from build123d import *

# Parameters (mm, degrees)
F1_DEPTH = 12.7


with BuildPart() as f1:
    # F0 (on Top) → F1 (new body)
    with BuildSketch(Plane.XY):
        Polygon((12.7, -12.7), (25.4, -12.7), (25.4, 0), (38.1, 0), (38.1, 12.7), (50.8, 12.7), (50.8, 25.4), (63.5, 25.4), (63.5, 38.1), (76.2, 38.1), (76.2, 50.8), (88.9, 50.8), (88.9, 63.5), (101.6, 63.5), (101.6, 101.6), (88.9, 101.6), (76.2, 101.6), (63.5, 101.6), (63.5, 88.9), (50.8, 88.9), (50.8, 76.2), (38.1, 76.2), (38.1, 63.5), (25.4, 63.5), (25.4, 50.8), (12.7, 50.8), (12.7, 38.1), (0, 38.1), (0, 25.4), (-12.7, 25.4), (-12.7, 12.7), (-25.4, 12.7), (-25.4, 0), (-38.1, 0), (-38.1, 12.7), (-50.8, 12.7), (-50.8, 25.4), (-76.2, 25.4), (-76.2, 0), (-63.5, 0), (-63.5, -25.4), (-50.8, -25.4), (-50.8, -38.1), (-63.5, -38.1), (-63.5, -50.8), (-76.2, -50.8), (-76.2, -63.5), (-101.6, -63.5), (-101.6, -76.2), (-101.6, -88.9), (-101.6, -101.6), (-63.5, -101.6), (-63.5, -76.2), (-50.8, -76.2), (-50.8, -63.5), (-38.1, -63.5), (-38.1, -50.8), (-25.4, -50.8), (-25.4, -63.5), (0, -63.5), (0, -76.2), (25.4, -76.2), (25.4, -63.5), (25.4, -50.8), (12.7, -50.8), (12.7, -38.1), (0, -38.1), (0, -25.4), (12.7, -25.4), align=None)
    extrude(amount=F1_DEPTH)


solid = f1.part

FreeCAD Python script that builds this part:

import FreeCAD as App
import Part
import Sketcher

V = App.Vector
Q = App.Units.Quantity

doc = App.newDocument("Part")
body = doc.addObject("PartDesign::Body", "Body")

sketch1 = doc.addObject("Sketcher::SketchObject", "Sketch")
body.addObject(sketch1)
sketch1.AttachmentSupport = (doc.XY_Plane, [""])
sketch1.MapMode = "FlatFace"
sketch1.addGeometry([
    Part.LineSegment(V(12.7, -12.7, 0), V(25.4, -12.7, 0)),
    Part.LineSegment(V(25.4, -12.7, 0), V(25.4, 0, 0)),
    Part.LineSegment(V(25.4, 0, 0), V(38.1, 0, 0)),
    Part.LineSegment(V(38.1, 0, 0), V(38.1, 12.7, 0)),
    Part.LineSegment(V(38.1, 12.7, 0), V(50.8, 12.7, 0)),
    Part.LineSegment(V(50.8, 12.7, 0), V(50.8, 25.4, 0)),
    Part.LineSegment(V(50.8, 25.4, 0), V(63.5, 25.4, 0)),
    Part.LineSegment(V(63.5, 25.4, 0), V(63.5, 38.1, 0)),
    Part.LineSegment(V(63.5, 38.1, 0), V(76.2, 38.1, 0)),
    Part.LineSegment(V(76.2, 38.1, 0), V(76.2, 50.8, 0)),
    Part.LineSegment(V(76.2, 50.8, 0), V(88.9, 50.8, 0)),
    Part.LineSegment(V(88.9, 50.8, 0), V(88.9, 63.5, 0)),
    Part.LineSegment(V(88.9, 63.5, 0), V(101.6, 63.5, 0)),
    Part.LineSegment(V(101.6, 63.5, 0), V(101.6, 101.6, 0)),
    Part.LineSegment(V(101.6, 101.6, 0), V(63.5, 101.6, 0)),
    Part.LineSegment(V(63.5, 101.6, 0), V(63.5, 88.9, 0)),
    Part.LineSegment(V(63.5, 88.9, 0), V(50.8, 88.9, 0)),
    Part.LineSegment(V(50.8, 88.9, 0), V(50.8, 76.2, 0)),
    Part.LineSegment(V(50.8, 76.2, 0), V(38.1, 76.2, 0)),
    Part.LineSegment(V(38.1, 76.2, 0), V(38.1, 63.5, 0)),
    Part.LineSegment(V(38.1, 63.5, 0), V(25.4, 63.5, 0)),
    Part.LineSegment(V(25.4, 63.5, 0), V(25.4, 50.8, 0)),
    Part.LineSegment(V(25.4, 50.8, 0), V(12.7, 50.8, 0)),
    Part.LineSegment(V(12.7, 50.8, 0), V(12.7, 38.1, 0)),
    Part.LineSegment(V(12.7, 38.1, 0), V(0, 38.1, 0)),
    Part.LineSegment(V(0, 38.1, 0), V(0, 25.4, 0)),
    Part.LineSegment(V(0, 25.4, 0), V(-12.7, 25.4, 0)),
    Part.LineSegment(V(-12.7, 25.4, 0), V(-12.7, 12.7, 0)),
    Part.LineSegment(V(-12.7, 12.7, 0), V(-25.4, 12.7, 0)),
    Part.LineSegment(V(-25.4, 12.7, 0), V(-25.4, 0, 0)),
    Part.LineSegment(V(-25.4, 0, 0), V(-38.1, 0, 0)),
    Part.LineSegment(V(-38.1, 0, 0), V(-38.1, 12.7, 0)),
    Part.LineSegment(V(-38.1, 12.7, 0), V(-50.8, 12.7, 0)),
    Part.LineSegment(V(-50.8, 12.7, 0), V(-50.8, 25.4, 0)),
    Part.LineSegment(V(-50.8, 25.4, 0), V(-76.2, 25.4, 0)),
    Part.LineSegment(V(-76.2, 25.4, 0), V(-76.2, 0, 0)),
    Part.LineSegment(V(-76.2, 0, 0), V(-63.5, 0, 0)),
    Part.LineSegment(V(-63.5, 0, 0), V(-63.5, -25.4, 0)),
    Part.LineSegment(V(-63.5, -25.4, 0), V(-50.8, -25.4, 0)),
    Part.LineSegment(V(-50.8, -25.4, 0), V(-50.8, -38.1, 0)),
    Part.LineSegment(V(-50.8, -38.1, 0), V(-63.5, -38.1, 0)),
    Part.LineSegment(V(-63.5, -38.1, 0), V(-63.5, -50.8, 0)),
    Part.LineSegment(V(-63.5, -50.8, 0), V(-76.2, -50.8, 0)),
    Part.LineSegment(V(-76.2, -50.8, 0), V(-76.2, -63.5, 0)),
    Part.LineSegment(V(-76.2, -63.5, 0), V(-101.6, -63.5, 0)),
    Part.LineSegment(V(-101.6, -63.5, 0), V(-101.6, -101.6, 0)),
    Part.LineSegment(V(-101.6, -101.6, 0), V(-63.5, -101.6, 0)),
    Part.LineSegment(V(-63.5, -101.6, 0), V(-63.5, -76.2, 0)),
    Part.LineSegment(V(-63.5, -76.2, 0), V(-50.8, -76.2, 0)),
    Part.LineSegment(V(-50.8, -76.2, 0), V(-50.8, -63.5, 0)),
    Part.LineSegment(V(-50.8, -63.5, 0), V(-38.1, -63.5, 0)),
    Part.LineSegment(V(-38.1, -63.5, 0), V(-38.1, -50.8, 0)),
    Part.LineSegment(V(-38.1, -50.8, 0), V(-25.4, -50.8, 0)),
    Part.LineSegment(V(-25.4, -50.8, 0), V(-25.4, -63.5, 0)),
    Part.LineSegment(V(-25.4, -63.5, 0), V(0, -63.5, 0)),
    Part.LineSegment(V(0, -63.5, 0), V(0, -76.2, 0)),
    Part.LineSegment(V(0, -76.2, 0), V(25.4, -76.2, 0)),
    Part.LineSegment(V(25.4, -76.2, 0), V(25.4, -50.8, 0)),
    Part.LineSegment(V(25.4, -50.8, 0), V(12.7, -50.8, 0)),
    Part.LineSegment(V(12.7, -50.8, 0), V(12.7, -38.1, 0)),
    Part.LineSegment(V(12.7, -38.1, 0), V(0, -38.1, 0)),
    Part.LineSegment(V(0, -38.1, 0), V(0, -25.4, 0)),
    Part.LineSegment(V(0, -25.4, 0), V(12.7, -25.4, 0)),
    Part.LineSegment(V(12.7, -25.4, 0), V(12.7, -12.7, 0)),
], False)
sketch1.addConstraint([
    Sketcher.Constraint("Coincident", 0, 2, 1, 1),
    Sketcher.Constraint("Coincident", 1, 2, 2, 1),
    Sketcher.Constraint("Coincident", 2, 2, 3, 1),
    Sketcher.Constraint("Coincident", 3, 2, 4, 1),
    Sketcher.Constraint("Coincident", 4, 2, 5, 1),
    Sketcher.Constraint("Coincident", 5, 2, 6, 1),
    Sketcher.Constraint("Coincident", 6, 2, 7, 1),
    Sketcher.Constraint("Coincident", 7, 2, 8, 1),
    Sketcher.Constraint("Coincident", 8, 2, 9, 1),
    Sketcher.Constraint("Coincident", 9, 2, 10, 1),
    Sketcher.Constraint("Coincident", 10, 2, 11, 1),
    Sketcher.Constraint("Coincident", 11, 2, 12, 1),
    Sketcher.Constraint("Coincident", 12, 2, 13, 1),
    Sketcher.Constraint("Coincident", 13, 2, 14, 1),
    Sketcher.Constraint("Coincident", 14, 2, 15, 1),
    Sketcher.Constraint("Coincident", 15, 2, 16, 1),
    Sketcher.Constraint("Coincident", 16, 2, 17, 1),
    Sketcher.Constraint("Coincident", 17, 2, 18, 1),
    Sketcher.Constraint("Coincident", 18, 2, 19, 1),
    Sketcher.Constraint("Coincident", 19, 2, 20, 1),
    Sketcher.Constraint("Coincident", 20, 2, 21, 1),
    Sketcher.Constraint("Coincident", 21, 2, 22, 1),
    Sketcher.Constraint("Coincident", 22, 2, 23, 1),
    Sketcher.Constraint("Coincident", 23, 2, 24, 1),
    Sketcher.Constraint("Coincident", 24, 2, 25, 1),
    Sketcher.Constraint("Coincident", 25, 2, 26, 1),
    Sketcher.Constraint("Coincident", 26, 2, 27, 1),
    Sketcher.Constraint("Coincident", 27, 2, 28, 1),
    Sketcher.Constraint("Coincident", 28, 2, 29, 1),
    Sketcher.Constraint("Coincident", 29, 2, 30, 1),
    Sketcher.Constraint("Coincident", 30, 2, 31, 1),
    Sketcher.Constraint("Coincident", 31, 2, 32, 1),
    Sketcher.Constraint("Coincident", 32, 2, 33, 1),
    Sketcher.Constraint("Coincident", 33, 2, 34, 1),
    Sketcher.Constraint("Coincident", 34, 2, 35, 1),
    Sketcher.Constraint("Coincident", 35, 2, 36, 1),
    Sketcher.Constraint("Coincident", 36, 2, 37, 1),
    Sketcher.Constraint("Coincident", 37, 2, 38, 1),
    Sketcher.Constraint("Coincident", 38, 2, 39, 1),
    Sketcher.Constraint("Coincident", 39, 2, 40, 1),
    Sketcher.Constraint("Coincident", 40, 2, 41, 1),
    Sketcher.Constraint("Coincident", 41, 2, 42, 1),
    Sketcher.Constraint("Coincident", 42, 2, 43, 1),
    Sketcher.Constraint("Coincident", 43, 2, 44, 1),
    Sketcher.Constraint("Coincident", 44, 2, 45, 1),
    Sketcher.Constraint("Coincident", 45, 2, 46, 1),
    Sketcher.Constraint("Coincident", 46, 2, 47, 1),
    Sketcher.Constraint("Coincident", 47, 2, 48, 1),
    Sketcher.Constraint("Coincident", 48, 2, 49, 1),
    Sketcher.Constraint("Coincident", 49, 2, 50, 1),
    Sketcher.Constraint("Coincident", 50, 2, 51, 1),
    Sketcher.Constraint("Coincident", 51, 2, 52, 1),
    Sketcher.Constraint("Coincident", 52, 2, 53, 1),
    Sketcher.Constraint("Coincident", 53, 2, 54, 1),
    Sketcher.Constraint("Coincident", 54, 2, 55, 1),
    Sketcher.Constraint("Coincident", 55, 2, 56, 1),
    Sketcher.Constraint("Coincident", 56, 2, 57, 1),
    Sketcher.Constraint("Coincident", 57, 2, 58, 1),
    Sketcher.Constraint("Coincident", 58, 2, 59, 1),
    Sketcher.Constraint("Coincident", 59, 2, 60, 1),
    Sketcher.Constraint("Coincident", 60, 2, 61, 1),
    Sketcher.Constraint("Coincident", 61, 2, 62, 1),
    Sketcher.Constraint("Coincident", 62, 2, 63, 1),
    Sketcher.Constraint("Coincident", 63, 2, 0, 1),
    Sketcher.Constraint("Horizontal", 0),
    Sketcher.Constraint("Vertical", 1),
    Sketcher.Constraint("Horizontal", 2),
    Sketcher.Constraint("Vertical", 3),
    Sketcher.Constraint("Horizontal", 4),
    Sketcher.Constraint("Vertical", 5),
    Sketcher.Constraint("Horizontal", 6),
    Sketcher.Constraint("Vertical", 7),
    Sketcher.Constraint("Horizontal", 8),
    Sketcher.Constraint("Vertical", 9),
    Sketcher.Constraint("Horizontal", 10),
    Sketcher.Constraint("Vertical", 11),
    Sketcher.Constraint("Horizontal", 12),
    Sketcher.Constraint("Vertical", 13),
    Sketcher.Constraint("Horizontal", 14),
    Sketcher.Constraint("Vertical", 15),
    Sketcher.Constraint("Horizontal", 16),
    Sketcher.Constraint("Vertical", 17),
    Sketcher.Constraint("Horizontal", 18),
    Sketcher.Constraint("Vertical", 19),
    Sketcher.Constraint("Horizontal", 20),
    Sketcher.Constraint("Vertical", 21),
    Sketcher.Constraint("Horizontal", 22),
    Sketcher.Constraint("Vertical", 23),
    Sketcher.Constraint("Horizontal", 24),
    Sketcher.Constraint("Vertical", 25),
    Sketcher.Constraint("Horizontal", 26),
    Sketcher.Constraint("Vertical", 27),
    Sketcher.Constraint("Horizontal", 28),
    Sketcher.Constraint("Vertical", 29),
    Sketcher.Constraint("Horizontal", 30),
    Sketcher.Constraint("Vertical", 31),
    Sketcher.Constraint("Horizontal", 32),
    Sketcher.Constraint("Vertical", 33),
    Sketcher.Constraint("Horizontal", 34),
    Sketcher.Constraint("Vertical", 35),
    Sketcher.Constraint("Horizontal", 36),
    Sketcher.Constraint("Vertical", 37),
    Sketcher.Constraint("Horizontal", 38),
    Sketcher.Constraint("Vertical", 39),
    Sketcher.Constraint("Horizontal", 40),
    Sketcher.Constraint("Vertical", 41),
    Sketcher.Constraint("Horizontal", 42),
    Sketcher.Constraint("Vertical", 43),
    Sketcher.Constraint("Horizontal", 44),
    Sketcher.Constraint("Vertical", 45),
    Sketcher.Constraint("Horizontal", 46),
    Sketcher.Constraint("Vertical", 47),
    Sketcher.Constraint("Horizontal", 48),
    Sketcher.Constraint("Vertical", 49),
    Sketcher.Constraint("Horizontal", 50),
    Sketcher.Constraint("Vertical", 51),
    Sketcher.Constraint("Horizontal", 52),
    Sketcher.Constraint("Vertical", 53),
    Sketcher.Constraint("Horizontal", 54),
    Sketcher.Constraint("Vertical", 55),
    Sketcher.Constraint("Horizontal", 56),
    Sketcher.Constraint("Vertical", 57),
    Sketcher.Constraint("Horizontal", 58),
    Sketcher.Constraint("Vertical", 59),
    Sketcher.Constraint("Horizontal", 60),
    Sketcher.Constraint("Vertical", 61),
    Sketcher.Constraint("Horizontal", 62),
    Sketcher.Constraint("Vertical", 63),
    Sketcher.Constraint("Symmetric", 0, 2, 28, 2, -1, 1),
    Sketcher.Constraint("Symmetric", 2, 2, 30, 2, -1, 1),
    Sketcher.Constraint("Symmetric", 6, 2, 37, 2, -1, 1),
    Sketcher.Constraint("Symmetric", 7, 2, 40, 2, -1, 1),
    Sketcher.Constraint("Symmetric", 9, 2, 42, 2, -1, 1),
    Sketcher.Constraint("Symmetric", 12, 2, 44, 2, -1, 1),
    Sketcher.Constraint("Symmetric", 14, 2, 46, 2, -1, 1),
    Sketcher.Constraint("Symmetric", 17, 2, 48, 2, -1, 1),
    Sketcher.Constraint("Symmetric", 19, 2, 50, 2, -1, 1),
    Sketcher.Constraint("Symmetric", 21, 2, 52, 2, -1, 1),
    Sketcher.Constraint("Symmetric", 24, 2, 60, 2, -1, 1),
    Sketcher.Constraint("Symmetric", 26, 2, 62, 2, -1, 1),
    Sketcher.Constraint("Symmetric", 4, 2, 32, 2, -2),
    Sketcher.Constraint("Symmetric", 52, 2, 57, 2, -2),
    Sketcher.Constraint("Symmetric", 33, 2, 38, 2, -1),
    Sketcher.Constraint("PointOnObject", 1, 2, -1),
    Sketcher.Constraint("PointOnObject", 24, 2, -2),
    Sketcher.Constraint("PointOnObject", 35, 2, -1),
    Sketcher.Constraint("PointOnObject", 54, 2, -2),
    Sketcher.Constraint("Horizontal", 12, 2, 19, 2),
    Sketcher.Constraint("Horizontal", 10, 2, 21, 2),
    Sketcher.Constraint("Horizontal", 8, 2, 23, 2),
    Sketcher.Constraint("Horizontal", 6, 2, 25, 2),
    Sketcher.Constraint("Horizontal", 4, 2, 27, 2),
    Sketcher.Constraint("Horizontal", 50, 2, 53, 2),
    Sketcher.Constraint("Horizontal", 48, 2, 55, 2),
    Sketcher.Constraint("Vertical", 7, 2, 14, 2),
    Sketcher.Constraint("Vertical", 5, 2, 16, 2),
    Sketcher.Constraint("Vertical", 3, 2, 18, 2),
    Sketcher.Constraint("Vertical", 1, 2, 20, 2),
    Sketcher.Constraint("Vertical", 35, 2, 42, 2),
    Sketcher.Constraint("Vertical", 23, 2, 58, 2),
    Sketcher.Constraint("Vertical", 59, 2, 62, 2),
    Sketcher.Constraint("Equal", 0, 2),
    Sketcher.Constraint("Equal", 2, 4),
    Sketcher.Constraint("Equal", 4, 6),
    Sketcher.Constraint("Equal", 6, 8),
    Sketcher.Constraint("Equal", 8, 10),
    Sketcher.Constraint("Equal", 10, 12),
    Sketcher.Constraint("Equal", 22, 24),
    Sketcher.Constraint("Equal", 62, 1),
    Sketcher.Constraint("Equal", 3, 5),
    Sketcher.Constraint("Equal", 5, 7),
    Sketcher.Constraint("Equal", 7, 9),
    Sketcher.Constraint("Equal", 9, 11),
    Sketcher.Constraint("Equal", 46, 13),
    Sketcher.Constraint("Equal", 11, 15),
    Sketcher.Constraint("Equal", 15, 17),
    Sketcher.Constraint("DistanceX", 34, 2, 34, 1, Q("1 in")),
])
pad1 = doc.addObject("PartDesign::Pad", "Pad")
body.addObject(pad1)
pad1.Profile = sketch1
pad1.Length = Q("0.5 in")

doc.recompute()
